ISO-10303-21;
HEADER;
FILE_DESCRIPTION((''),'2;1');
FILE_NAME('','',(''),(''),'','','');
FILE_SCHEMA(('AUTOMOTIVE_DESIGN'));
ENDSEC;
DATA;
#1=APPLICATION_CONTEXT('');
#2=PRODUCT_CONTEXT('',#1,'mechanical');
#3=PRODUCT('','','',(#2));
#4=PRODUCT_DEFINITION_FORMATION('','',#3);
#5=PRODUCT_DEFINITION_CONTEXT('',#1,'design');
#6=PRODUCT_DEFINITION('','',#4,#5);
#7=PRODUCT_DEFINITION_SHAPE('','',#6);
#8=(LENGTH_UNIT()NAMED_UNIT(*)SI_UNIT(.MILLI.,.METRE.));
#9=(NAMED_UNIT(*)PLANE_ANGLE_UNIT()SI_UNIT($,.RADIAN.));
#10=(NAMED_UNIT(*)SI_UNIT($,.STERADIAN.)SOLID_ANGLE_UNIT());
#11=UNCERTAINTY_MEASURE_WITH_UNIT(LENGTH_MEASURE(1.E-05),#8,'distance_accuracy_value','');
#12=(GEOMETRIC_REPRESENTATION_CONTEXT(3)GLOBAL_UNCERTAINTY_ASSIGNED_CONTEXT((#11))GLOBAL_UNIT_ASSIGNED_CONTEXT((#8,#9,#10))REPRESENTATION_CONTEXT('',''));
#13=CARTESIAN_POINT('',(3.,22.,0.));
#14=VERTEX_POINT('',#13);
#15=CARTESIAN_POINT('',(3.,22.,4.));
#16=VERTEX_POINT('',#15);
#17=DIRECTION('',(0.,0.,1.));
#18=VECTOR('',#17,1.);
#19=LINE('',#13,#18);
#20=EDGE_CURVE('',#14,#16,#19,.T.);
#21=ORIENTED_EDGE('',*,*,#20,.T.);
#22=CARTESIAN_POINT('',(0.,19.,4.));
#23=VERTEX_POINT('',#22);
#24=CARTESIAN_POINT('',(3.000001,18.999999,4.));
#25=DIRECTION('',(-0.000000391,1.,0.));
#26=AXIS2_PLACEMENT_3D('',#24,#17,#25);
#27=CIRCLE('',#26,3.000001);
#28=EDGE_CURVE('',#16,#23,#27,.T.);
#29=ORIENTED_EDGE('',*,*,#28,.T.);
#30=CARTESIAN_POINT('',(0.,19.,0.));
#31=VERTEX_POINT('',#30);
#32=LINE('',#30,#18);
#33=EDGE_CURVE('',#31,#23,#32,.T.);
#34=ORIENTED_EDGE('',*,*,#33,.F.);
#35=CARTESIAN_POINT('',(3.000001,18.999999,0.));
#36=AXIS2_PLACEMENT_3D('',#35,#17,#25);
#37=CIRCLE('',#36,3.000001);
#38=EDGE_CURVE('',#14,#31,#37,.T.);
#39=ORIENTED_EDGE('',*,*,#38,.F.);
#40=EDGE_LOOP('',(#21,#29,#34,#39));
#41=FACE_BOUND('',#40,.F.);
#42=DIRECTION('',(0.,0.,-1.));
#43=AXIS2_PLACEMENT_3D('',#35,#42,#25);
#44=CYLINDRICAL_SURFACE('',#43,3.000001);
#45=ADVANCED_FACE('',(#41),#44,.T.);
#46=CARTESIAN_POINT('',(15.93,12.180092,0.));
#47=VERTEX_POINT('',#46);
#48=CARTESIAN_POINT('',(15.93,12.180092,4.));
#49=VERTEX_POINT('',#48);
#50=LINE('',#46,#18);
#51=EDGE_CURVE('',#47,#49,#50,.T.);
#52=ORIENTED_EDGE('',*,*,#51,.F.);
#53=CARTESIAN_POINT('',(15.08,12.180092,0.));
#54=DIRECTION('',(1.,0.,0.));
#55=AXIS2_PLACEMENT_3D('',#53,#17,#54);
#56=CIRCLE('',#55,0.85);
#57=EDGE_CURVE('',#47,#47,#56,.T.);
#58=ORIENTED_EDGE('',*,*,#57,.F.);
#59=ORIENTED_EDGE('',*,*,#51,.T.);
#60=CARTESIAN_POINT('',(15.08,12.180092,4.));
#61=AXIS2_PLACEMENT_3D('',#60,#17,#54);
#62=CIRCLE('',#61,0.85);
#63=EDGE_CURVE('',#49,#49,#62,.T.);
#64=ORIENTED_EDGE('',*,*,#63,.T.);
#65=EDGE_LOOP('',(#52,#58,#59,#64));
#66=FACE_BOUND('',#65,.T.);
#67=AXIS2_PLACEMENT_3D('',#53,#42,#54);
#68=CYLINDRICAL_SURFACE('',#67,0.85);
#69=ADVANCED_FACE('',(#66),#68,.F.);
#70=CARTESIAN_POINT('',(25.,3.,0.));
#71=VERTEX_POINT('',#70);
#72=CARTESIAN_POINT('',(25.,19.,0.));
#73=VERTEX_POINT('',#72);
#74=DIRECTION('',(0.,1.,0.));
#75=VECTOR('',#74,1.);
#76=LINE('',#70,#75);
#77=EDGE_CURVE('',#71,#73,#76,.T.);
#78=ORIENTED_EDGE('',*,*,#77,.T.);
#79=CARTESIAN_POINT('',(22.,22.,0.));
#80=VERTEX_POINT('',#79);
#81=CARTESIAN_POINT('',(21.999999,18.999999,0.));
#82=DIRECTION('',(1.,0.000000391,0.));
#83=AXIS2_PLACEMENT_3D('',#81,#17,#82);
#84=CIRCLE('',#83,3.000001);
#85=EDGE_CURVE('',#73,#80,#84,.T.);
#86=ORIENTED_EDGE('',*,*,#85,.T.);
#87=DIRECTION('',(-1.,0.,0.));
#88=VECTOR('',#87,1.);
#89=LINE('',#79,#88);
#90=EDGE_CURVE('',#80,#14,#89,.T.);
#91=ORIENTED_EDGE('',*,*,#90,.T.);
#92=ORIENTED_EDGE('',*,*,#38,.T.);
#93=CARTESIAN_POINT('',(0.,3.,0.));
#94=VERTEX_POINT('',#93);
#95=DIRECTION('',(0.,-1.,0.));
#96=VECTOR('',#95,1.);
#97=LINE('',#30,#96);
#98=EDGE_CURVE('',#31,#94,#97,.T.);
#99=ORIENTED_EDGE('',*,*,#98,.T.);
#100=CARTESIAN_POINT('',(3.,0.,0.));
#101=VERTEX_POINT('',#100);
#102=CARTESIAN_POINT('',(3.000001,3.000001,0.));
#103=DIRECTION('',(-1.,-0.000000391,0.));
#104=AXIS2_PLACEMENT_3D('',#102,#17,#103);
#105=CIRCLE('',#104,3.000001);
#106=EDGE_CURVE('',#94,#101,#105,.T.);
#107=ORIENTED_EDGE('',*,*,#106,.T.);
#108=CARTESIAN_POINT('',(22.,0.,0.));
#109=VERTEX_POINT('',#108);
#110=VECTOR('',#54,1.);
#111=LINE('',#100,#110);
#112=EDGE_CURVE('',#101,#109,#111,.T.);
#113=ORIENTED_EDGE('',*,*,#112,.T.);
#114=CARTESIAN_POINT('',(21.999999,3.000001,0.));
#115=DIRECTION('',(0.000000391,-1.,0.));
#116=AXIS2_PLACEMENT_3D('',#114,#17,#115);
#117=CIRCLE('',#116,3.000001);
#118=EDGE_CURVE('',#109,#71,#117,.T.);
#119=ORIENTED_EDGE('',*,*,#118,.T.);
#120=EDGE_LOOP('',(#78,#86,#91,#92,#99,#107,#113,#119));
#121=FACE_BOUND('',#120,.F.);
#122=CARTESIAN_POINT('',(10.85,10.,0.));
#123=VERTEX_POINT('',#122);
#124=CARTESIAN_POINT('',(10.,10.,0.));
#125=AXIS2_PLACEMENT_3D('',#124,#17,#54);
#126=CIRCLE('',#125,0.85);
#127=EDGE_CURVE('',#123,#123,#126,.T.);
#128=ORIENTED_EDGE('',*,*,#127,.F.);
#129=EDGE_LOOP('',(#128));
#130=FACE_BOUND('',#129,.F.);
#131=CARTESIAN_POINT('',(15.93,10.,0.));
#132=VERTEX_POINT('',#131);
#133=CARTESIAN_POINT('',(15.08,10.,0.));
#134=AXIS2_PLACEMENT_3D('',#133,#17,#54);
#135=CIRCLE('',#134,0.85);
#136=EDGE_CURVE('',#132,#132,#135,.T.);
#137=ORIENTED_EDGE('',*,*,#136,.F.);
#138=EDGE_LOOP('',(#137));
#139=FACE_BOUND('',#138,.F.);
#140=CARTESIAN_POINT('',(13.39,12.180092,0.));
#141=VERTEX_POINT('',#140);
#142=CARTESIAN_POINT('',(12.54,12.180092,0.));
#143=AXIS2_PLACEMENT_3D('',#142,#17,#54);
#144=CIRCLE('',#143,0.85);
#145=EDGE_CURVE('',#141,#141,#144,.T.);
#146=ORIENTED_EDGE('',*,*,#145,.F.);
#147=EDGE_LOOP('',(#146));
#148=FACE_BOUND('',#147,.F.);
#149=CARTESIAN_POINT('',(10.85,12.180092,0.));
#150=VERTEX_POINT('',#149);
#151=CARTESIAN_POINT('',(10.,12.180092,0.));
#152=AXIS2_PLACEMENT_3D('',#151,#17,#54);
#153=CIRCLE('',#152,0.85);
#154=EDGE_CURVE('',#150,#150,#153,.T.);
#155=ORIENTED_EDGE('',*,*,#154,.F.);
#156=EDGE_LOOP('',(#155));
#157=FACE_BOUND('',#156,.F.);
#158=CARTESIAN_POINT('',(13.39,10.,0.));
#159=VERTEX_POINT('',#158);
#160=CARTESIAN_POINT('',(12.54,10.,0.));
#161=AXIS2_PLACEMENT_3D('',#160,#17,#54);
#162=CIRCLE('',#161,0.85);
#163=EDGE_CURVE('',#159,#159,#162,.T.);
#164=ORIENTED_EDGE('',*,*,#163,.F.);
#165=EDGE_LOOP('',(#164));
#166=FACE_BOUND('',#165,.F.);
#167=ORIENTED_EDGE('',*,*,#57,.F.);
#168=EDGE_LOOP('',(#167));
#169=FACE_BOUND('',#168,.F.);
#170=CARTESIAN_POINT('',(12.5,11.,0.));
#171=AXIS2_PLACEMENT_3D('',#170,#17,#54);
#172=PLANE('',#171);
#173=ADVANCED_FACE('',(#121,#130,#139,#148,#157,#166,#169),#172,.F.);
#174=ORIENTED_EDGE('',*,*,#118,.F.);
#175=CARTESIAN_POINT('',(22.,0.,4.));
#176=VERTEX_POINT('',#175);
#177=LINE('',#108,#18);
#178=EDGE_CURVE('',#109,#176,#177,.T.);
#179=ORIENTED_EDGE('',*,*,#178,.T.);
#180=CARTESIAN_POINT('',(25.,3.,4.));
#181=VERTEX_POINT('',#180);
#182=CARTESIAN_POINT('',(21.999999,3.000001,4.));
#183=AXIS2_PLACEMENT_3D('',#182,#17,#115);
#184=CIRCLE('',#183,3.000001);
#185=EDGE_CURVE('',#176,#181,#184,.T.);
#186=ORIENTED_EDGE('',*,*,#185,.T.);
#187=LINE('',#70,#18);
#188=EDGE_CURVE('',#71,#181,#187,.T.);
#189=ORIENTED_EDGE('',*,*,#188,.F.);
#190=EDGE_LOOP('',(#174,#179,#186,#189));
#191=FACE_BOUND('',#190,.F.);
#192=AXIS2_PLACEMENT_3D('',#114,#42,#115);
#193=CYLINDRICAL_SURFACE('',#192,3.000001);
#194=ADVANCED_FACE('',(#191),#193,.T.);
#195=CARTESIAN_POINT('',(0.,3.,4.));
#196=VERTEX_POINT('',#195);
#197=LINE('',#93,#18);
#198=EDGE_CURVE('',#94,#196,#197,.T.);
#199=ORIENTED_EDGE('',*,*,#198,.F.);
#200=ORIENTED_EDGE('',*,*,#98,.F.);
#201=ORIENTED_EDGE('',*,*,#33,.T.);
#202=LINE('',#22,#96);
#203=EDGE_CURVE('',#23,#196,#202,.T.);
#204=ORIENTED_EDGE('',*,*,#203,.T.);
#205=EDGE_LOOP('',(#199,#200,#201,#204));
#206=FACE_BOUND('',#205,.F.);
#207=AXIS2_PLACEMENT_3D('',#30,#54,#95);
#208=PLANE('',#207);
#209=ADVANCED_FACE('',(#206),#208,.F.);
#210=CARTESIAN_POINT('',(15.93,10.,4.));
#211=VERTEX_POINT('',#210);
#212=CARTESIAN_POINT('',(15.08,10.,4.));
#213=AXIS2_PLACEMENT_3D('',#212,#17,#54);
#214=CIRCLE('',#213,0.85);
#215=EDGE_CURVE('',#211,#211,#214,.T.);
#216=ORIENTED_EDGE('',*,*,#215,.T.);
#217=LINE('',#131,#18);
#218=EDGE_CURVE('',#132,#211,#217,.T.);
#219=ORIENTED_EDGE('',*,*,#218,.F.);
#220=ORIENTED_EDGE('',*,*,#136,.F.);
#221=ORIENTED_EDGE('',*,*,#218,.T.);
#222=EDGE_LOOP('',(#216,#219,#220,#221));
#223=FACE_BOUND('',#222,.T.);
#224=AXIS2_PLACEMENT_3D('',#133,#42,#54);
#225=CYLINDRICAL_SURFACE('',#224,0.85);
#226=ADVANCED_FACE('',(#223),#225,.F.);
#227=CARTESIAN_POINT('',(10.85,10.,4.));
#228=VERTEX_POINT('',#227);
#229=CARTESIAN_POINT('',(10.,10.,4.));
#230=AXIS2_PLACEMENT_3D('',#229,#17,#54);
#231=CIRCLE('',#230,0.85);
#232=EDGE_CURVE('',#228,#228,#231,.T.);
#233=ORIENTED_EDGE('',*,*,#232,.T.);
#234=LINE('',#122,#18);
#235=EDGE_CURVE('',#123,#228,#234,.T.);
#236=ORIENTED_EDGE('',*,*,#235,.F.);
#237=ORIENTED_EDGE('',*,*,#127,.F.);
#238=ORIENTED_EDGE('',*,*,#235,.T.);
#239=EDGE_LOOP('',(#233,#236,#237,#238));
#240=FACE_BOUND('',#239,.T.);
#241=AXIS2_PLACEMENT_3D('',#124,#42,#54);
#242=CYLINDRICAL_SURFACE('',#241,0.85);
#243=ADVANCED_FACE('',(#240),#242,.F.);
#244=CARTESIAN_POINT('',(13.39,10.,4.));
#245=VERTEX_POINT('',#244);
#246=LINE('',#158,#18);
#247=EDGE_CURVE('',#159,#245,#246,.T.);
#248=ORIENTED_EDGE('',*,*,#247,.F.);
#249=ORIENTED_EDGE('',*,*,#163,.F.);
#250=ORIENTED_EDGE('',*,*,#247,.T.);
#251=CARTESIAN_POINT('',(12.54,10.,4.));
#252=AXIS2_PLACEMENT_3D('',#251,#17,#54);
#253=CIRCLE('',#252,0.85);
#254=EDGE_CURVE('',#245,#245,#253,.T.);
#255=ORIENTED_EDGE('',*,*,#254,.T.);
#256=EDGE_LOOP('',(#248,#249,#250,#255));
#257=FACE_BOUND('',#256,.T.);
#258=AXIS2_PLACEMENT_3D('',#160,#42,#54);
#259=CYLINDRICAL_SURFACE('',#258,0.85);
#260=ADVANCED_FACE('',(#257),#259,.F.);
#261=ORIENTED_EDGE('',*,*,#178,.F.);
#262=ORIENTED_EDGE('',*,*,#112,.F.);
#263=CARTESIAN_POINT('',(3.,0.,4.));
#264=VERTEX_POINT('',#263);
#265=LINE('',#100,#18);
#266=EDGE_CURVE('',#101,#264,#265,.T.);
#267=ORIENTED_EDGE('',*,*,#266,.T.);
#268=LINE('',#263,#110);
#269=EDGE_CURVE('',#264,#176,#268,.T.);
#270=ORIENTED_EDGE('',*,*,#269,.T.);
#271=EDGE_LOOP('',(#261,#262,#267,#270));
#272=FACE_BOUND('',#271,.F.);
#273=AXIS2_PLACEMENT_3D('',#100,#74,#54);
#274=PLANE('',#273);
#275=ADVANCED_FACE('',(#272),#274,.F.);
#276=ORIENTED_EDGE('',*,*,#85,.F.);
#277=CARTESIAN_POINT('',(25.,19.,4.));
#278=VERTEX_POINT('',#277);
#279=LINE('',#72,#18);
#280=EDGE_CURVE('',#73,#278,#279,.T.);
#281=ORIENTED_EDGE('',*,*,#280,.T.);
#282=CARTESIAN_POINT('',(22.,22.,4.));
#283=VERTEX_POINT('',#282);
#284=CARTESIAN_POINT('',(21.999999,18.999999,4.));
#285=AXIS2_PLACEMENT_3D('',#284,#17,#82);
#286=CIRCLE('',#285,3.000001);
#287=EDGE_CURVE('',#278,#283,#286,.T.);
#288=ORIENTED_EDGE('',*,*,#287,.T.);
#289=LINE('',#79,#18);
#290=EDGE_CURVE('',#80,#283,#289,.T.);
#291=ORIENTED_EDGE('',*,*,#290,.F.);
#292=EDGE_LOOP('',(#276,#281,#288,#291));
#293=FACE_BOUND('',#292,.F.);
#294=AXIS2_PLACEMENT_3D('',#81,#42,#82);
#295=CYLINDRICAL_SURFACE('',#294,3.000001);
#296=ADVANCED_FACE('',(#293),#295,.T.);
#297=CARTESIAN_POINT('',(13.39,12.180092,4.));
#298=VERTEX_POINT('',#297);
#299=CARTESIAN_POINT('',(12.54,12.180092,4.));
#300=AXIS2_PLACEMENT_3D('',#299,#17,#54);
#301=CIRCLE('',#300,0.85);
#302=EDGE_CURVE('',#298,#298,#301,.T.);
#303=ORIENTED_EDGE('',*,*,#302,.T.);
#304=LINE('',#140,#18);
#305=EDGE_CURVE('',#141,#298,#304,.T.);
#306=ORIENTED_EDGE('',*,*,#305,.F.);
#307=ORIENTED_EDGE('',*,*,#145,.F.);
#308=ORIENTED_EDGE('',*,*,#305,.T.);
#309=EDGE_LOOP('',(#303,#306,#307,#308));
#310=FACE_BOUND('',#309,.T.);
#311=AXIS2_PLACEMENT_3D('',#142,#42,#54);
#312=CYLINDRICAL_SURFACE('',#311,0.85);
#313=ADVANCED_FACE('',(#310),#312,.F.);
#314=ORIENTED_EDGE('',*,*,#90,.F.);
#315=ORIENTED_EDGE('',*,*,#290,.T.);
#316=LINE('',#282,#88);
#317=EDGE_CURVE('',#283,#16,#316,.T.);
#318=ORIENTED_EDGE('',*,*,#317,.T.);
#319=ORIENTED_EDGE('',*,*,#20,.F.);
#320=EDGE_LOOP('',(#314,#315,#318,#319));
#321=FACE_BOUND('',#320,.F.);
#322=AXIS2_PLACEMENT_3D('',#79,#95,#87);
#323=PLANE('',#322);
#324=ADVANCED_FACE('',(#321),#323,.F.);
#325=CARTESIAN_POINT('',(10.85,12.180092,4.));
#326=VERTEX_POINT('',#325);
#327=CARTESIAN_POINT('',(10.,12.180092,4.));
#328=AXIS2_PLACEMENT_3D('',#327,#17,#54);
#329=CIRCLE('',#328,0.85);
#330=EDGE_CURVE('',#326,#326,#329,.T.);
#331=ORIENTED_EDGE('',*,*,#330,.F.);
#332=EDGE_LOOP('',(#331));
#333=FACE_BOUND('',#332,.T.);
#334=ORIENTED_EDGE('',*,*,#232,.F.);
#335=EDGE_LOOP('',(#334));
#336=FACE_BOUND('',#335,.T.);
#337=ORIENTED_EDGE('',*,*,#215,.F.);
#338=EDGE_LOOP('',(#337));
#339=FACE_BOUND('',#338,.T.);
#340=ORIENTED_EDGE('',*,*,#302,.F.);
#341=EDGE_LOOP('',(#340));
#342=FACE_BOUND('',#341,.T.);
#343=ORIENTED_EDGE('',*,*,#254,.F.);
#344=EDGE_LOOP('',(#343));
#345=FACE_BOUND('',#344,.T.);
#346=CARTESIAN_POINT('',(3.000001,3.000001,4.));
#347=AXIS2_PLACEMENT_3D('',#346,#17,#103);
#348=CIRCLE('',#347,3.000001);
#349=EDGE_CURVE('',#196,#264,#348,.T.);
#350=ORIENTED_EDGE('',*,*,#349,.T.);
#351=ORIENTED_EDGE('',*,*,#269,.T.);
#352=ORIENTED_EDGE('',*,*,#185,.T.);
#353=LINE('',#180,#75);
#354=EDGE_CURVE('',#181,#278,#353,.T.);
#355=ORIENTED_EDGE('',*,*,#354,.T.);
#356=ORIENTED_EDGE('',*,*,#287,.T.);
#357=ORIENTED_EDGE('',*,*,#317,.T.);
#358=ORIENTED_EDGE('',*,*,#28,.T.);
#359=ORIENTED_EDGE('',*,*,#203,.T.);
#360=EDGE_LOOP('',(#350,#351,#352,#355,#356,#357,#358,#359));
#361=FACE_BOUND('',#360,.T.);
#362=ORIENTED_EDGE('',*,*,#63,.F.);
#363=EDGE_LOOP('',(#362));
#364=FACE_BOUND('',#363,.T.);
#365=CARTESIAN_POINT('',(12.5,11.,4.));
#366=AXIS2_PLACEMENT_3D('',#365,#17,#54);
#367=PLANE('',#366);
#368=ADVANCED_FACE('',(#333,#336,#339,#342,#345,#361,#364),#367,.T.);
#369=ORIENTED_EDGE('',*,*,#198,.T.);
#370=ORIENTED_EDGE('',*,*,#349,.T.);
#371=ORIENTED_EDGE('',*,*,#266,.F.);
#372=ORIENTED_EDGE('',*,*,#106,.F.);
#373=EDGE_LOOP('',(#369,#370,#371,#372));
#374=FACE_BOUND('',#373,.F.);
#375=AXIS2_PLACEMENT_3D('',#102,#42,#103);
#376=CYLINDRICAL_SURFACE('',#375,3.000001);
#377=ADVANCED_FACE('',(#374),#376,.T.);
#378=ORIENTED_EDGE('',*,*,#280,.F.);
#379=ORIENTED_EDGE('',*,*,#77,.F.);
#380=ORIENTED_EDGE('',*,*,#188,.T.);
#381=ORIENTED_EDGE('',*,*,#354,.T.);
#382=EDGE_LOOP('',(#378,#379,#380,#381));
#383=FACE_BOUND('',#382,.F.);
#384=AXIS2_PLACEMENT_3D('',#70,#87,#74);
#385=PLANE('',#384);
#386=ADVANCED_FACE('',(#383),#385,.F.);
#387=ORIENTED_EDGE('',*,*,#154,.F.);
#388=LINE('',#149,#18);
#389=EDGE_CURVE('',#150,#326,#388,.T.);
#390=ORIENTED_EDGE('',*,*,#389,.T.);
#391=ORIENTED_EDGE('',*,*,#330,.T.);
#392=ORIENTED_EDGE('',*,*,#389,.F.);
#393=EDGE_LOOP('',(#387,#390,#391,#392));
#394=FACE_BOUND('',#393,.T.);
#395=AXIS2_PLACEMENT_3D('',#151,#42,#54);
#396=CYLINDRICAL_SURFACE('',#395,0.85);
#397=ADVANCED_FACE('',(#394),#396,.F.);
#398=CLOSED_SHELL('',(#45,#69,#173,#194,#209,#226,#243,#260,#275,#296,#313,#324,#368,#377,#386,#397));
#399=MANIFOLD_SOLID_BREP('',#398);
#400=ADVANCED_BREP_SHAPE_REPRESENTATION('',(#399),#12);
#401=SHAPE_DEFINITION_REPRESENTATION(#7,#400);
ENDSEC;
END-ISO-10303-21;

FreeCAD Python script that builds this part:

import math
import FreeCAD as App
import Part
import Sketcher
Q = App.Units.Quantity

doc = App.newDocument("Part")
params = doc.addObject("Spreadsheet::Sheet", "Params")
for row, (alias, value) in enumerate([
    ("sketch1_radius", "3.000001 mm"),
    ("sketch1_diameter", "1.7 mm"),
    ("sketch1_width", "19 mm"),
    ("sketch1_height", "16 mm"),
    ("pad1_length", "4 mm"),
], start=1):
    params.set(f"A{row}", alias)
    params.set(f"B{row}", "=" + value)
    params.setAlias(f"B{row}", alias)

body = doc.addObject("PartDesign::Body", "Body")

sketch1 = body.newObject("Sketcher::SketchObject", "Sketch")
sketch1.AttachmentSupport = (doc.getObject("XY_Plane"), [""])
sketch1.MapMode = "FlatFace"
sketch1.addGeometry([
    Part.ArcOfCircle(Part.Circle(App.Vector(3, 3, 0), App.Vector(0, 0, 1), 3), math.radians(-180), math.radians(-90)),
    Part.LineSegment(App.Vector(3, 0, 0), App.Vector(22, 0, 0)),
    Part.ArcOfCircle(Part.Circle(App.Vector(22, 3, 0), App.Vector(0, 0, 1), 3), math.radians(-90), math.radians(0)),
    Part.LineSegment(App.Vector(25, 3, 0), App.Vector(25, 19, 0)),
    Part.ArcOfCircle(Part.Circle(App.Vector(22, 19, 0), App.Vector(0, 0, 1), 3), math.radians(0), math.radians(90)),
    Part.LineSegment(App.Vector(22, 22, 0), App.Vector(3, 22, 0)),
    Part.ArcOfCircle(Part.Circle(App.Vector(3, 19, 0), App.Vector(0, 0, 1), 3), math.radians(90), math.radians(180)),
    Part.LineSegment(App.Vector(0, 19, 0), App.Vector(0, 3, 0)),
    Part.Circle(App.Vector(10, 10, 0), App.Vector(0, 0, 1), 0.8),
    Part.Circle(App.Vector(12.5, 10, 0), App.Vector(0, 0, 1), 0.8),
    Part.Circle(App.Vector(15.1, 10, 0), App.Vector(0, 0, 1), 0.8),
    Part.Circle(App.Vector(10, 12.2, 0), App.Vector(0, 0, 1), 0.8),
    Part.Circle(App.Vector(12.5, 12.2, 0), App.Vector(0, 0, 1), 0.8),
    Part.Circle(App.Vector(15.1, 12.2, 0), App.Vector(0, 0, 1), 0.8),
], False)
sketch1.addConstraint([
    Sketcher.Constraint("Tangent", 0, 2, 1, 1),
    Sketcher.Constraint("Tangent", 1, 2, 2, 1),
    Sketcher.Constraint("Tangent", 2, 2, 3, 1),
    Sketcher.Constraint("Tangent", 3, 2, 4, 1),
    Sketcher.Constraint("Tangent", 4, 2, 5, 1),
    Sketcher.Constraint("Tangent", 5, 2, 6, 1),
    Sketcher.Constraint("Tangent", 6, 2, 7, 1),
    Sketcher.Constraint("Tangent", 7, 2, 0, 1),
    Sketcher.Constraint("Horizontal", 1),
    Sketcher.Constraint("Vertical", 3),
    Sketcher.Constraint("Horizontal", 5),
    Sketcher.Constraint("Vertical", 7),
    Sketcher.Constraint("Equal", 0, 2),
    Sketcher.Constraint("Equal", 2, 4),
    Sketcher.Constraint("Equal", 4, 6),
    Sketcher.Constraint("Equal", 8, 9),
    Sketcher.Constraint("Equal", 9, 10),
    Sketcher.Constraint("Equal", 10, 11),
    Sketcher.Constraint("Equal", 11, 12),
    Sketcher.Constraint("Equal", 12, 13),
    Sketcher.Constraint("PointOnObject", 0, 2, -1),
    Sketcher.Constraint("PointOnObject", 6, 2, -2),
    Sketcher.Constraint("Horizontal", 8, 3, 9, 3),
    Sketcher.Constraint("Horizontal", 9, 3, 10, 3),
    Sketcher.Constraint("Horizontal", 11, 3, 12, 3),
    Sketcher.Constraint("Horizontal", 12, 3, 13, 3),
    Sketcher.Constraint("Vertical", 8, 3, 11, 3),
    Sketcher.Constraint("Vertical", 9, 3, 12, 3),
    Sketcher.Constraint("Vertical", 10, 3, 13, 3),
    Sketcher.Constraint("Radius", 0, Q("3.000001 mm")),
    Sketcher.Constraint("Diameter", 8, Q("1.7 mm")),
    Sketcher.Constraint("DistanceX", 1, 1, 1, 2, Q("19 mm")),
    Sketcher.Constraint("DistanceY", 3, 1, 3, 2, Q("16 mm")),
    Sketcher.Constraint("DistanceX", -1, 1, 8, 3, Q("10 mm")),
    Sketcher.Constraint("DistanceY", -1, 1, 8, 3, Q("10 mm")),
    Sketcher.Constraint("DistanceX", -1, 1, 9, 3, Q("12.54 mm")),
    Sketcher.Constraint("DistanceX", -1, 1, 10, 3, Q("15.08 mm")),
    Sketcher.Constraint("DistanceY", 0, 3, 11, 3, Q("9.180091 mm")),
])
sketch1.setExpression("Constraints[29]", "Params.sketch1_radius")
sketch1.setExpression("Constraints[30]", "Params.sketch1_diameter")
sketch1.setExpression("Constraints[31]", "Params.sketch1_width")
sketch1.setExpression("Constraints[32]", "Params.sketch1_height")
pad1 = body.newObject("PartDesign::Pad", "Pad")
pad1.Profile = sketch1
pad1.setExpression("Length", "Params.pad1_length")

doc.recompute()
